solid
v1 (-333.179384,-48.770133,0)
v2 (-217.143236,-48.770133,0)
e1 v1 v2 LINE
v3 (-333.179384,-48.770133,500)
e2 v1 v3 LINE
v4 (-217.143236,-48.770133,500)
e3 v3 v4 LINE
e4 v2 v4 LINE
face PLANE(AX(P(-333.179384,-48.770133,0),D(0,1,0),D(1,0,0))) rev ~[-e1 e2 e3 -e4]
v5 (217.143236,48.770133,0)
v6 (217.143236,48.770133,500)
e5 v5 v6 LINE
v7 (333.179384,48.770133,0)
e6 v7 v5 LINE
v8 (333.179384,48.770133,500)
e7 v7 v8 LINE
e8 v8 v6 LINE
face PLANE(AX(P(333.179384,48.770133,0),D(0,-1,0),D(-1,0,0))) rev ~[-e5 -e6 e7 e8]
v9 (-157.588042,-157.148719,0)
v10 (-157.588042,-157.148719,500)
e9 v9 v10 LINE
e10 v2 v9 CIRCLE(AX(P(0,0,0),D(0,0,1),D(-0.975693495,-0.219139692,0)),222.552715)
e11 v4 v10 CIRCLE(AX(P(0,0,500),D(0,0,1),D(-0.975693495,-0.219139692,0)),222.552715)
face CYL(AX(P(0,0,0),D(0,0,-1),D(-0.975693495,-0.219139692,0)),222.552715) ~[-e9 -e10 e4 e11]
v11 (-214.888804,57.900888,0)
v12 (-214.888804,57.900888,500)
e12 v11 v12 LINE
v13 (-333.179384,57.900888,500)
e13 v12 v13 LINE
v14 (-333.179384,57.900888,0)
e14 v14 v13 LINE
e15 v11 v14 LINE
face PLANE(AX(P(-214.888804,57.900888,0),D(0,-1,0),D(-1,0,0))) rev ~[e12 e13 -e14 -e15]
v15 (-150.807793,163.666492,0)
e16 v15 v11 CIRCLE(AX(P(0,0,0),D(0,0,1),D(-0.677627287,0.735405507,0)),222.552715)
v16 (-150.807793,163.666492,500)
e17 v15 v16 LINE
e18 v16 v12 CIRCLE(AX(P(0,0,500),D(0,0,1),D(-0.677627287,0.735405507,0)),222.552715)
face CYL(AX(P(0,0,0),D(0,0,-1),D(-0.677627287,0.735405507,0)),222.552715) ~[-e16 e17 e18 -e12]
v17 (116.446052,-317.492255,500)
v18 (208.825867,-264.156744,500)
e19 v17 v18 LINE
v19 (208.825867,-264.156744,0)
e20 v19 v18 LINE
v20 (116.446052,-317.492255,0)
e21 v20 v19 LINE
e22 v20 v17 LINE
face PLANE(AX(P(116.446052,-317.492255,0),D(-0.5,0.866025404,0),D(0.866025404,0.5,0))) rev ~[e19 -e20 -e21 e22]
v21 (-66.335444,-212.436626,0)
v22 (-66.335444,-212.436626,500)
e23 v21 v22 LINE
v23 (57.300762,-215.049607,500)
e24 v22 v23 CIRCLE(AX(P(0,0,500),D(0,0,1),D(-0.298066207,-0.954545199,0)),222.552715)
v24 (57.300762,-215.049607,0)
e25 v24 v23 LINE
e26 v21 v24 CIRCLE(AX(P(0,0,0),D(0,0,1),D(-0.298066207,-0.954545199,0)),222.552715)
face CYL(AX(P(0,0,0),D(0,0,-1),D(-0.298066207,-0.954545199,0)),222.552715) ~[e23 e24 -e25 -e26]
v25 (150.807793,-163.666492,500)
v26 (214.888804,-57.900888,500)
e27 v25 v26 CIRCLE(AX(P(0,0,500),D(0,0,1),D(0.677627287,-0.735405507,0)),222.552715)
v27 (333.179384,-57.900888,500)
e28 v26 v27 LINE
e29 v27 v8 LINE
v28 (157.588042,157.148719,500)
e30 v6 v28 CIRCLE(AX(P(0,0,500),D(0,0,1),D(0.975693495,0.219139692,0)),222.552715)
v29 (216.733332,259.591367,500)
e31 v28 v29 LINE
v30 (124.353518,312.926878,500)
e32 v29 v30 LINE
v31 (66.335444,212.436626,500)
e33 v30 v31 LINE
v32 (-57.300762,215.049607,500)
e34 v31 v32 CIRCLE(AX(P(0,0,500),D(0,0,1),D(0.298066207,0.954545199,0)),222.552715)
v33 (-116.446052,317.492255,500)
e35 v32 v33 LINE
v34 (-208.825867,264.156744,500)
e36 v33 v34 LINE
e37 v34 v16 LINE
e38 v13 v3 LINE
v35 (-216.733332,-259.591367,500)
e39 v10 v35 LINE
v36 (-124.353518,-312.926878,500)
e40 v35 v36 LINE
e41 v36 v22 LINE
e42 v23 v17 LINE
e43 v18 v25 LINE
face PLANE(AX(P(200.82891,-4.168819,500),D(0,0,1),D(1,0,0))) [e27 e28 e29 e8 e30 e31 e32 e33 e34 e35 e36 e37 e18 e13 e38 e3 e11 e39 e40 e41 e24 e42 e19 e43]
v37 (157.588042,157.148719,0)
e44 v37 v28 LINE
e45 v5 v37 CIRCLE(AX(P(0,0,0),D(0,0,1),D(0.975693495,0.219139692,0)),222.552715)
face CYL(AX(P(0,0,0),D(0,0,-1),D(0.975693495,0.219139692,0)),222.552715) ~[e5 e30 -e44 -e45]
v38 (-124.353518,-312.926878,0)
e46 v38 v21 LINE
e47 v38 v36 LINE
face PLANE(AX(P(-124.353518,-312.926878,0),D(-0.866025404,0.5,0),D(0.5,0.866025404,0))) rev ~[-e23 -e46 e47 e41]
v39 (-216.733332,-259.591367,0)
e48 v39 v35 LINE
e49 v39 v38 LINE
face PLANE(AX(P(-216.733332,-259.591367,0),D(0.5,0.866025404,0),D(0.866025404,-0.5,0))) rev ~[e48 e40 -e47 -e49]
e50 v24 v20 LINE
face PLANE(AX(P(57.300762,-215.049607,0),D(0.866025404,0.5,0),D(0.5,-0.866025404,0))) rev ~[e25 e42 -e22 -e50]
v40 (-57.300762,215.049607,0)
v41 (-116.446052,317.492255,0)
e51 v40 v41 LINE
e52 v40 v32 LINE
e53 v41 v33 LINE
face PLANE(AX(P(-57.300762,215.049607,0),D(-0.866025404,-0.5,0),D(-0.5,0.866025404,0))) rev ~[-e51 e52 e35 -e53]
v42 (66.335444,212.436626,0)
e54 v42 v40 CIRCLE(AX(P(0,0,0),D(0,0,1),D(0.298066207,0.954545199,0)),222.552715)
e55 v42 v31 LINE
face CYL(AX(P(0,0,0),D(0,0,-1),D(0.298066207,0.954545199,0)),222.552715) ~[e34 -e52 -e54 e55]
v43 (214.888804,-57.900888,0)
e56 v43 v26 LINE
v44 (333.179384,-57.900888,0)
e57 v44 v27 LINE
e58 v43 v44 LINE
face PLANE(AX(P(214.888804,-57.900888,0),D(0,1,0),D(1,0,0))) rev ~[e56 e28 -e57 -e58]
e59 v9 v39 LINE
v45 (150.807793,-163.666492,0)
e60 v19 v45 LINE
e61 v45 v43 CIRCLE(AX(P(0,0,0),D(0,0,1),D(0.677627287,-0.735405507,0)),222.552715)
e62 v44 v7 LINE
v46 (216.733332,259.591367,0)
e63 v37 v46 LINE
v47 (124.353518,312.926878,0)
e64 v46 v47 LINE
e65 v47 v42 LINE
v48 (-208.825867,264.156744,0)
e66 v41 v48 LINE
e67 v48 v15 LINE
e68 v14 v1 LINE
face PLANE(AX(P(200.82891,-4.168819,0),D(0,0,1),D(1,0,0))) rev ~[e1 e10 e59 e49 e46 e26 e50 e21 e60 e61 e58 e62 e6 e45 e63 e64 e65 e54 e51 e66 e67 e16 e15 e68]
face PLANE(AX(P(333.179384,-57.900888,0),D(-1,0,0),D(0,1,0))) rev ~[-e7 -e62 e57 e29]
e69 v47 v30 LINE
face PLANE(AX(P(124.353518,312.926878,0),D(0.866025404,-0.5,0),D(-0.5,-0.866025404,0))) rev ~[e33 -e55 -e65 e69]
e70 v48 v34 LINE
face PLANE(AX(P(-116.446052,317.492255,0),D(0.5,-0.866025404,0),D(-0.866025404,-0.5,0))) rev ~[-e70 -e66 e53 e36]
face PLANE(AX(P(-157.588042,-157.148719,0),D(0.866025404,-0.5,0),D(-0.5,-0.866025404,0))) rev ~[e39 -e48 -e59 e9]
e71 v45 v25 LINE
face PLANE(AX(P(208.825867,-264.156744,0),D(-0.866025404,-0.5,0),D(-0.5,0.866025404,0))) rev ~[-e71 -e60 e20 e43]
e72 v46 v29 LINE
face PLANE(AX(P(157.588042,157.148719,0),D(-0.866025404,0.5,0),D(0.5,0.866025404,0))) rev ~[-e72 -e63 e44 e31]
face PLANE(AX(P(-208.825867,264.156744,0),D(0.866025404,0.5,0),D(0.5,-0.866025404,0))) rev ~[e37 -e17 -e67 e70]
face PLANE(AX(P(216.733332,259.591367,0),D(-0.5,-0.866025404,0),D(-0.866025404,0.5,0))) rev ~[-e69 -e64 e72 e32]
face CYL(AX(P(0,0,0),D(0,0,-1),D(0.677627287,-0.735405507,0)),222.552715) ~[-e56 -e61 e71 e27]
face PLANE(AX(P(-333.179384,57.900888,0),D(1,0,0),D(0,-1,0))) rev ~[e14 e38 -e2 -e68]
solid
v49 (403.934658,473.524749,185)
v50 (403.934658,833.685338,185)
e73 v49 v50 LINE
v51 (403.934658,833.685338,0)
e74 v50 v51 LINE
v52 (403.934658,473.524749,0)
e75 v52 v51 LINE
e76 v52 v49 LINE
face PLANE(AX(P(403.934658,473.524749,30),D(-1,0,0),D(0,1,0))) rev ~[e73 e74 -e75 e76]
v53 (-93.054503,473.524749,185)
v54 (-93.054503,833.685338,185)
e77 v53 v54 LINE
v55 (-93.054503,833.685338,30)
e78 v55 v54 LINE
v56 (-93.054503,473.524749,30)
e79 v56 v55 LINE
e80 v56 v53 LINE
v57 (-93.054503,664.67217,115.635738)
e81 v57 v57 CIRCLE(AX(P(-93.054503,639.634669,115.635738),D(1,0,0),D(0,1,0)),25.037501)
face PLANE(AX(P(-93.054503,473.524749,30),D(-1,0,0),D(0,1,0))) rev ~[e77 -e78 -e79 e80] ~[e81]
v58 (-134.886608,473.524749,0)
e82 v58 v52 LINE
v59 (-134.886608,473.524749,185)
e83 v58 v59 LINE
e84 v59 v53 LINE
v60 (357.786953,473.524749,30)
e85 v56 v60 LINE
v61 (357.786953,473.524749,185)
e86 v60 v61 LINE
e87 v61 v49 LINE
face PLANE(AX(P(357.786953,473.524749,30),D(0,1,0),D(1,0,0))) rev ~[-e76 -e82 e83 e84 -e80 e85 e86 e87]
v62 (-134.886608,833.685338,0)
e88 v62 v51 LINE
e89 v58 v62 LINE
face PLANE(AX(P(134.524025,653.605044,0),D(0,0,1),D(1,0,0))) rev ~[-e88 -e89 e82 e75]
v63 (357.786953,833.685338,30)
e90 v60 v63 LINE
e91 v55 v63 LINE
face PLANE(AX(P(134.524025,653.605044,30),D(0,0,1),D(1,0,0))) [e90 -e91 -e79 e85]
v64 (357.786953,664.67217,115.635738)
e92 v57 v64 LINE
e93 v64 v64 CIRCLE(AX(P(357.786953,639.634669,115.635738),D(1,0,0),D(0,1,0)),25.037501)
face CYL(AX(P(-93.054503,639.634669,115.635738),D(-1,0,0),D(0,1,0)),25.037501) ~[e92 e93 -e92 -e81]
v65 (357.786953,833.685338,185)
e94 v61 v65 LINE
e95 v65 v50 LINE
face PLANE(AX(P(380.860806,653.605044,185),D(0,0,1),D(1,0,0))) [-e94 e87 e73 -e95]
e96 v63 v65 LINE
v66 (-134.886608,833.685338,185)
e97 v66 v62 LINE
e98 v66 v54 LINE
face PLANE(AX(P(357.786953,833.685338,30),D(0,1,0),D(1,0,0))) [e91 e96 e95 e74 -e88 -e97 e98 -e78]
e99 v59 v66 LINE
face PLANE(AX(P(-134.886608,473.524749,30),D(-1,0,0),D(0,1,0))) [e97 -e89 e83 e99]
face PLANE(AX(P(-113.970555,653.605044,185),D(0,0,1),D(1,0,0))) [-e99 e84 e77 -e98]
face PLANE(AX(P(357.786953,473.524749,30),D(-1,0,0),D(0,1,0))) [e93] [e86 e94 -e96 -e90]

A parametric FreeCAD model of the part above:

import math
import FreeCAD as App
import Part
import Sketcher

V = App.Vector
Q = App.Units.Quantity


def add_polygon(sketch, points):
    """Adds a closed chain of lines whose ends are joined by coincident constraints."""
    first, n = sketch.GeometryCount, len(points)
    for a, b in zip(points, points[1:] + points[:1]):
        sketch.addGeometry(Part.LineSegment(App.Vector(*a, 0), App.Vector(*b, 0)), False)
    for i in range(n):
        sketch.addConstraint(Sketcher.Constraint("Coincident", first + i, 2, first + (i + 1) % n, 1))

doc = App.newDocument("Part")
params = doc.addObject("Spreadsheet::Sheet", "Params")
for row, (alias, value) in enumerate([
    ("pad1_length", "500 mm"),
    ("pad2_length", "30 mm"),
    ("pad3_length", "155 mm"),
    ("pad4_length", "155 mm"),
], start=1):
    params.set(f"A{row}", alias)
    params.set(f"B{row}", "=" + value)
    params.setAlias(f"B{row}", alias)

body = doc.addObject("PartDesign::Body", "Body")

sketch1 = body.newObject("Sketcher::SketchObject", "Sketch")
sketch1.AttachmentSupport = (doc.getObject("XY_Plane"), [""])
sketch1.MapMode = "FlatFace"
sketch1.addGeometry(Part.LineSegment(V(214.888804, -57.900888, 0), V(333.179384, -57.900888, 0)), False)
sketch1.addGeometry(Part.LineSegment(V(333.179384, -57.900888, 0), V(333.179384, 48.770133, 0)), False)
sketch1.addGeometry(Part.LineSegment(V(333.179384, 48.770133, 0), V(217.143236, 48.770133, 0)), False)
sketch1.addGeometry(Part.ArcOfCircle(Part.Circle(V(0, 0, 0), V(0, 0, 1), 222.552715), math.radians(12.658508), math.radians(44.920024)), False)
sketch1.addGeometry(Part.LineSegment(V(157.588042, 157.148719, 0), V(216.733332, 259.591367, 0)), False)
sketch1.addGeometry(Part.LineSegment(V(216.733332, 259.591367, 0), V(124.353518, 312.926878, 0)), False)
sketch1.addGeometry(Part.LineSegment(V(124.353518, 312.926878, 0), V(66.335444, 212.436626, 0)), False)
sketch1.addGeometry(Part.ArcOfCircle(Part.Circle(V(0, 0, 0), V(0, 0, 1), 222.552715), math.radians(72.658508), math.radians(104.920024)), False)
sketch1.addGeometry(Part.LineSegment(V(-57.300762, 215.049607, 0), V(-116.446052, 317.492255, 0)), False)
sketch1.addGeometry(Part.LineSegment(V(-116.446052, 317.492255, 0), V(-208.825867, 264.156744, 0)), False)
sketch1.addGeometry(Part.LineSegment(V(-208.825867, 264.156744, 0), V(-150.807793, 163.666492, 0)), False)
sketch1.addGeometry(Part.ArcOfCircle(Part.Circle(V(0, 0, 0), V(0, 0, 1), 222.552715), math.radians(132.658508), math.radians(164.920024)), False)
sketch1.addGeometry(Part.LineSegment(V(-214.888804, 57.900888, 0), V(-333.179384, 57.900888, 0)), False)
sketch1.addGeometry(Part.LineSegment(V(-333.179384, 57.900888, 0), V(-333.179384, -48.770133, 0)), False)
sketch1.addGeometry(Part.LineSegment(V(-333.179384, -48.770133, 0), V(-217.143236, -48.770133, 0)), False)
sketch1.addGeometry(Part.ArcOfCircle(Part.Circle(V(0, 0, 0), V(0, 0, 1), 222.552715), math.radians(-167.341492), math.radians(-135.079976)), False)
sketch1.addGeometry(Part.LineSegment(V(-157.588042, -157.148719, 0), V(-216.733332, -259.591367, 0)), False)
sketch1.addGeometry(Part.LineSegment(V(-216.733332, -259.591367, 0), V(-124.353518, -312.926878, 0)), False)
sketch1.addGeometry(Part.LineSegment(V(-124.353518, -312.926878, 0), V(-66.335444, -212.436626, 0)), False)
sketch1.addGeometry(Part.ArcOfCircle(Part.Circle(V(0, 0, 0), V(0, 0, 1), 222.552715), math.radians(-107.341492), math.radians(-75.079976)), False)
sketch1.addGeometry(Part.LineSegment(V(57.300762, -215.049607, 0), V(116.446052, -317.492255, 0)), False)
sketch1.addGeometry(Part.LineSegment(V(116.446052, -317.492255, 0), V(208.825867, -264.156744, 0)), False)
sketch1.addGeometry(Part.LineSegment(V(208.825867, -264.156744, 0), V(150.807793, -163.666492, 0)), False)
sketch1.addGeometry(Part.ArcOfCircle(Part.Circle(V(0, 0, 0), V(0, 0, 1), 222.552715), math.radians(-47.341492), math.radians(-15.079976)), False)
sketch1.addConstraint(Sketcher.Constraint("Coincident", 0, 2, 1, 1))
sketch1.addConstraint(Sketcher.Constraint("Coincident", 1, 2, 2, 1))
sketch1.addConstraint(Sketcher.Constraint("Coincident", 2, 2, 3, 1))
sketch1.addConstraint(Sketcher.Constraint("Coincident", 3, 2, 4, 1))
sketch1.addConstraint(Sketcher.Constraint("Coincident", 4, 2, 5, 1))
sketch1.addConstraint(Sketcher.Constraint("Coincident", 5, 2, 6, 1))
sketch1.addConstraint(Sketcher.Constraint("Coincident", 6, 2, 7, 1))
sketch1.addConstraint(Sketcher.Constraint("Coincident", 7, 2, 8, 1))
sketch1.addConstraint(Sketcher.Constraint("Coincident", 8, 2, 9, 1))
sketch1.addConstraint(Sketcher.Constraint("Coincident", 9, 2, 10, 1))
sketch1.addConstraint(Sketcher.Constraint("Coincident", 10, 2, 11, 1))
sketch1.addConstraint(Sketcher.Constraint("Coincident", 11, 2, 12, 1))
sketch1.addConstraint(Sketcher.Constraint("Coincident", 12, 2, 13, 1))
sketch1.addConstraint(Sketcher.Constraint("Coincident", 13, 2, 14, 1))
sketch1.addConstraint(Sketcher.Constraint("Coincident", 14, 2, 15, 1))
sketch1.addConstraint(Sketcher.Constraint("Coincident", 15, 2, 16, 1))
sketch1.addConstraint(Sketcher.Constraint("Coincident", 16, 2, 17, 1))
sketch1.addConstraint(Sketcher.Constraint("Coincident", 17, 2, 18, 1))
sketch1.addConstraint(Sketcher.Constraint("Coincident", 18, 2, 19, 1))
sketch1.addConstraint(Sketcher.Constraint("Coincident", 19, 2, 20, 1))
sketch1.addConstraint(Sketcher.Constraint("Coincident", 20, 2, 21, 1))
sketch1.addConstraint(Sketcher.Constraint("Coincident", 21, 2, 22, 1))
sketch1.addConstraint(Sketcher.Constraint("Coincident", 22, 2, 23, 1))
sketch1.addConstraint(Sketcher.Constraint("Coincident", 23, 2, 0, 1))
sketch1.addConstraint(Sketcher.Constraint("Horizontal", 0))
sketch1.addConstraint(Sketcher.Constraint("Vertical", 1))
sketch1.addConstraint(Sketcher.Constraint("Horizontal", 2))
sketch1.addConstraint(Sketcher.Constraint("Horizontal", 12))
sketch1.addConstraint(Sketcher.Constraint("Vertical", 13))
sketch1.addConstraint(Sketcher.Constraint("Horizontal", 14))
sketch1.addConstraint(Sketcher.Constraint("Coincident", 3, 3, -1, 1))
sketch1.addConstraint(Sketcher.Constraint("Coincident", 7, 3, -1, 1))
sketch1.addConstraint(Sketcher.Constraint("Coincident", 11, 3, -1, 1))
sketch1.addConstraint(Sketcher.Constraint("Coincident", 15, 3, -1, 1))
sketch1.addConstraint(Sketcher.Constraint("Coincident", 19, 3, -1, 1))
sketch1.addConstraint(Sketcher.Constraint("Coincident", 23, 3, -1, 1))
sketch1.addConstraint(Sketcher.Constraint("Equal", 3, 7))
sketch1.addConstraint(Sketcher.Constraint("Equal", 7, 11))
sketch1.addConstraint(Sketcher.Constraint("Equal", 11, 15))
sketch1.addConstraint(Sketcher.Constraint("Equal", 15, 19))
sketch1.addConstraint(Sketcher.Constraint("Equal", 19, 23))
sketch1.addConstraint(Sketcher.Constraint("Symmetric", 0, 2, 12, 2, -1, 1))
sketch1.addConstraint(Sketcher.Constraint("Symmetric", 4, 2, 16, 2, -1, 1))
sketch1.addConstraint(Sketcher.Constraint("Symmetric", 5, 2, 17, 2, -1, 1))
sketch1.addConstraint(Sketcher.Constraint("Symmetric", 8, 2, 20, 2, -1, 1))
sketch1.addConstraint(Sketcher.Constraint("Symmetric", 9, 2, 21, 2, -1, 1))
sketch1.addConstraint(Sketcher.Constraint("Perpendicular", 4, 5))
sketch1.addConstraint(Sketcher.Constraint("Perpendicular", 5, 6))
sketch1.addConstraint(Sketcher.Constraint("Perpendicular", 8, 9))
sketch1.addConstraint(Sketcher.Constraint("Perpendicular", 9, 10))
sketch1.addConstraint(Sketcher.Constraint("Parallel", 6, 16))
sketch1.addConstraint(Sketcher.Constraint("Perpendicular", 17, 18))
sketch1.addConstraint(Sketcher.Constraint("Parallel", 10, 20))
sketch1.addConstraint(Sketcher.Constraint("Perpendicular", 21, 22))
sketch1.addConstraint(Sketcher.Constraint("Equal", 2, 14))
sketch1.addConstraint(Sketcher.Constraint("Equal", 4, 8))
sketch1.addConstraint(Sketcher.Constraint("Equal", 5, 9))
sketch1.addConstraint(Sketcher.Constraint("Equal", 6, 10))
sketch1.addConstraint(Sketcher.Constraint("Angle", 4, Q("60 deg")))
sketch1.addConstraint(Sketcher.Constraint("Angle", 8, Q("120 deg")))
sketch1.addConstraint(Sketcher.Constraint("Radius", 3, Q("222.552715 mm")))
sketch1.addConstraint(Sketcher.Constraint("DistanceX", 0, 1, 0, 2, Q("118.29058 mm")))
sketch1.addConstraint(Sketcher.Constraint("DistanceX", 2, 2, 2, 1, Q("116.036148 mm")))
sketch1.addConstraint(Sketcher.Constraint("DistanceY", 1, 1, 1, 2, Q("106.671021 mm")))
sketch1.addConstraint(Sketcher.Constraint("DistanceX", 6, 2, 3, 2, Q("91.252598 mm")))
sketch1.addConstraint(Sketcher.Constraint("Distance", 4, Q("118.29058 mm")))
sketch1.addConstraint(Sketcher.Constraint("Distance", 5, Q("106.671021 mm")))
pad1 = body.newObject("PartDesign::Pad", "Pad")
pad1.Profile = sketch1
pad1.setExpression("Length", "Params.pad1_length")
body2 = doc.addObject("PartDesign::Body", "Body001")

sketch2 = body2.newObject("Sketcher::SketchObject", "Sketch001")
sketch2.AttachmentSupport = (doc.getObject("XY_Plane001"), [""])
sketch2.MapMode = "FlatFace"
add_polygon(sketch2, [(-134.886608, 833.685338), (-134.886608, 473.524749), (403.934658, 473.524749), (403.934658, 833.685338)])
sketch2.addConstraint(Sketcher.Constraint("Vertical", 0))
sketch2.addConstraint(Sketcher.Constraint("Horizontal", 1))
sketch2.addConstraint(Sketcher.Constraint("Vertical", 2))
sketch2.addConstraint(Sketcher.Constraint("Horizontal", 3))
sketch2.addConstraint(Sketcher.Constraint("DistanceY", 0, 2, 0, 1, Q("360.160589 mm")))
sketch2.addConstraint(Sketcher.Constraint("DistanceX", 1, 1, 1, 2, Q("538.821265 mm")))
sketch2.addConstraint(Sketcher.Constraint("DistanceY", -1, 1, 0, 2, Q("473.524749 mm")))
sketch2.addConstraint(Sketcher.Constraint("DistanceX", 0, 2, -1, 1, Q("134.886608 mm")))
pad2 = body2.newObject("PartDesign::Pad", "Pad001")
pad2.Profile = sketch2
pad2.setExpression("Length", "Params.pad2_length")

sketch3 = body2.newObject("Sketcher::SketchObject", "Sketch002")
sketch3.AttachmentSupport = (doc.getObject("XY_Plane001"), [""])
sketch3.MapMode = "FlatFace"
sketch3.AttachmentOffset = App.Placement(V(0, 0, 30), App.Rotation())
add_polygon(sketch3, [(-134.886608, 833.685338), (-134.886608, 473.524749), (-93.054503, 473.524749), (-93.054503, 833.685338)])
sketch3.addConstraint(Sketcher.Constraint("Vertical", 0))
sketch3.addConstraint(Sketcher.Constraint("Horizontal", 1))
sketch3.addConstraint(Sketcher.Constraint("Vertical", 2))
sketch3.addConstraint(Sketcher.Constraint("Horizontal", 3))
sketch3.addConstraint(Sketcher.Constraint("DistanceY", 0, 2, 0, 1, Q("360.160589 mm")))
sketch3.addConstraint(Sketcher.Constraint("DistanceX", 1, 1, 1, 2, Q("41.832104 mm")))
sketch3.addConstraint(Sketcher.Constraint("DistanceY", -1, 1, 0, 2, Q("473.524749 mm")))
sketch3.addConstraint(Sketcher.Constraint("DistanceX", 0, 2, -1, 1, Q("134.886608 mm")))
pad3 = body2.newObject("PartDesign::Pad", "Pad002")
pad3.Profile = sketch3
pad3.setExpression("Length", "Params.pad3_length")

sketch4 = body2.newObject("Sketcher::SketchObject", "Sketch003")
sketch4.AttachmentSupport = (doc.getObject("XY_Plane001"), [""])
sketch4.MapMode = "FlatFace"
sketch4.AttachmentOffset = App.Placement(V(0, 0, 30), App.Rotation())
add_polygon(sketch4, [(357.786953, 833.685338), (357.786953, 473.524749), (403.934658, 473.524749), (403.934658, 833.685338)])
sketch4.addConstraint(Sketcher.Constraint("Vertical", 0))
sketch4.addConstraint(Sketcher.Constraint("Horizontal", 1))
sketch4.addConstraint(Sketcher.Constraint("Vertical", 2))
sketch4.addConstraint(Sketcher.Constraint("Horizontal", 3))
sketch4.addConstraint(Sketcher.Constraint("DistanceY", 0, 2, 0, 1, Q("360.160589 mm")))
sketch4.addConstraint(Sketcher.Constraint("DistanceX", 1, 1, 1, 2, Q("46.147704 mm")))
sketch4.addConstraint(Sketcher.Constraint("DistanceY", -1, 1, 0, 2, Q("473.524749 mm")))
sketch4.addConstraint(Sketcher.Constraint("DistanceX", -1, 1, 0, 2, Q("357.786953 mm")))
pad4 = body2.newObject("PartDesign::Pad", "Pad003")
pad4.Profile = sketch4
pad4.setExpression("Length", "Params.pad4_length")

sketch5 = body2.newObject("Sketcher::SketchObject", "Sketch004")
sketch5.AttachmentSupport = (doc.getObject("YZ_Plane001"), [""])
sketch5.MapMode = "FlatFace"
sketch5.AttachmentOffset = App.Placement(V(0, 0, -93.054503), App.Rotation())
sketch5.addGeometry(Part.Circle(V(639.634669, 115.635738, 0), V(0, 0, 1), 25.037501), False)
sketch5.addConstraint(Sketcher.Constraint("Diameter", 0, Q("50.075002 mm")))
sketch5.addConstraint(Sketcher.Constraint("DistanceX", -1, 1, 0, 3, Q("639.634669 mm")))
sketch5.addConstraint(Sketcher.Constraint("DistanceY", -1, 1, 0, 3, Q("115.635738 mm")))
pad5 = body2.newObject("PartDesign::Pad", "Pad004")
pad5.Profile = sketch5
pad5.Type = "UpToLast"

doc.recompute()
